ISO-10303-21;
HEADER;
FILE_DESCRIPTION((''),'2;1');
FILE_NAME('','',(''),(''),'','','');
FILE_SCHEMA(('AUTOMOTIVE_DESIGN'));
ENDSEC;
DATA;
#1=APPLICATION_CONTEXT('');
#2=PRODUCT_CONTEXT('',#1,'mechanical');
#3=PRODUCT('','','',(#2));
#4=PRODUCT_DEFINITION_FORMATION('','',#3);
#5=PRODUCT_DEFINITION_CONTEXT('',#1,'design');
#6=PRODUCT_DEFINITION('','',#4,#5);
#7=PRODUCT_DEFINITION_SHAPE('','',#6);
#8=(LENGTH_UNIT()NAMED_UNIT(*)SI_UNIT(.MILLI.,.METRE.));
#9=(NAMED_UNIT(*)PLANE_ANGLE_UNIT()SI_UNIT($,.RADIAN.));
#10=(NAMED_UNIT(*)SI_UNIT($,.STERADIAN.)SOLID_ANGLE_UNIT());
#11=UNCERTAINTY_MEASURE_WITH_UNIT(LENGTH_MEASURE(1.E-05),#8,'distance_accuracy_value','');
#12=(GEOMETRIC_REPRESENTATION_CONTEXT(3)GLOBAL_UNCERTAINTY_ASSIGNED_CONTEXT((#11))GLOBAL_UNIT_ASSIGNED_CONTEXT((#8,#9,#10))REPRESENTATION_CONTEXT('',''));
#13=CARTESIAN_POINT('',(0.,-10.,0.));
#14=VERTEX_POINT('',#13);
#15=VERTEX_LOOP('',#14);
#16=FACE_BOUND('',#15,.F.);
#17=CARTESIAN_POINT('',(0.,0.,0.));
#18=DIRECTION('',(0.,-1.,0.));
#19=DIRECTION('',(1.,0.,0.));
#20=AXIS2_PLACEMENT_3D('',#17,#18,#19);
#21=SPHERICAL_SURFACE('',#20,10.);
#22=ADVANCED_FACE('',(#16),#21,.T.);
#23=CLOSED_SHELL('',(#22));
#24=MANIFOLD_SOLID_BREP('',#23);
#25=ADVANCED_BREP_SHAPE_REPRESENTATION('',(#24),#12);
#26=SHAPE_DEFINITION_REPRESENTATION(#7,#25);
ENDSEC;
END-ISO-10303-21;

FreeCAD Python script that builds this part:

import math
import FreeCAD as App
import Part
import Sketcher

doc = App.newDocument("Part")
body = doc.addObject("PartDesign::Body", "Body")

sketch1 = body.newObject("Sketcher::SketchObject", "Sketch")
sketch1.AttachmentSupport = (doc.getObject("XY_Plane"), [""])
sketch1.MapMode = "FlatFace"
sketch1.addGeometry(Part.LineSegment(App.Vector(0, 10, 0), App.Vector(0, -10, 0)), False)
sketch1.addGeometry(Part.ArcOfCircle(Part.Circle(App.Vector(0, 0, 0), App.Vector(0, 0, 1), 10), math.radians(-90), math.radians(90)), False)
sketch1.addConstraint(Sketcher.Constraint("Coincident", 0, 1, 1, 2))
sketch1.addConstraint(Sketcher.Constraint("Coincident", 1, 1, 0, 2))
sketch1.addConstraint(Sketcher.Constraint("Vertical", 0))
sketch1.addConstraint(Sketcher.Constraint("Coincident", 1, 3, -1, 1))
sketch1.addConstraint(Sketcher.Constraint("PointOnObject", 0, 1, -2))
sketch1.addConstraint(Sketcher.Constraint("Radius", 1, 10.0))
revolution = body.newObject("PartDesign::Revolution", "Revolution")
revolution.Profile = sketch1
revolution.ReferenceAxis = (sketch1, ["V_Axis"])
revolution.Angle = 360

doc.recompute()
